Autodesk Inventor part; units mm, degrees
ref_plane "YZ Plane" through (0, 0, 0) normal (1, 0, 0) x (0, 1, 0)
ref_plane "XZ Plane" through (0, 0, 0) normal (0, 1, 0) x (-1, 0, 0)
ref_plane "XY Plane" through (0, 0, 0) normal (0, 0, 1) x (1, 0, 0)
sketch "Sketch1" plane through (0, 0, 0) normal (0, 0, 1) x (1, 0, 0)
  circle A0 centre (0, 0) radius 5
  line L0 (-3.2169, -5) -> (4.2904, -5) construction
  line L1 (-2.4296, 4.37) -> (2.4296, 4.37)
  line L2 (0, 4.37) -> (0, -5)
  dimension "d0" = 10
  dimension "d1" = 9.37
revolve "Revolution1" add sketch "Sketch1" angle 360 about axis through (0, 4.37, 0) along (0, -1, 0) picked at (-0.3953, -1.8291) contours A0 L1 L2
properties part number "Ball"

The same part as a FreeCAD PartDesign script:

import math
import FreeCAD as App
import Part
import Sketcher
Q = App.Units.Quantity

doc = App.newDocument("Part")
body = doc.addObject("PartDesign::Body", "Body")

sketch1 = body.newObject("Sketcher::SketchObject", "Sketch")
sketch1.AttachmentSupport = (doc.getObject("XY_Plane"), [""])
sketch1.MapMode = "FlatFace"
sketch1.addGeometry([
    Part.ArcOfCircle(Part.Circle(App.Vector(0, 0, 0), App.Vector(0, 0, 1), 5), math.radians(119.072858), math.radians(270)),
    Part.LineSegment(App.Vector(0, -5, 0), App.Vector(0, 4.37, 0)),
    Part.LineSegment(App.Vector(0, 4.37, 0), App.Vector(-2.4296, 4.37, 0)),
], False)
sketch1.addConstraint([
    Sketcher.Constraint("Coincident", 0, 2, 1, 1),
    Sketcher.Constraint("Coincident", 1, 2, 2, 1),
    Sketcher.Constraint("Coincident", 2, 2, 0, 1),
    Sketcher.Constraint("Vertical", 1),
    Sketcher.Constraint("Horizontal", 2),
    Sketcher.Constraint("Coincident", 0, 3, -1, 1),
    Sketcher.Constraint("PointOnObject", 0, 2, -2),
    Sketcher.Constraint("Radius", 0, Q("5 mm")),
    Sketcher.Constraint("DistanceY", 1, 1, 1, 2, Q("9.37 mm")),
])
revolution = body.newObject("PartDesign::Revolution", "Revolution")
revolution.Profile = sketch1
revolution.ReferenceAxis = (sketch1, ["V_Axis"])
revolution.Angle = 360

doc.recompute()
